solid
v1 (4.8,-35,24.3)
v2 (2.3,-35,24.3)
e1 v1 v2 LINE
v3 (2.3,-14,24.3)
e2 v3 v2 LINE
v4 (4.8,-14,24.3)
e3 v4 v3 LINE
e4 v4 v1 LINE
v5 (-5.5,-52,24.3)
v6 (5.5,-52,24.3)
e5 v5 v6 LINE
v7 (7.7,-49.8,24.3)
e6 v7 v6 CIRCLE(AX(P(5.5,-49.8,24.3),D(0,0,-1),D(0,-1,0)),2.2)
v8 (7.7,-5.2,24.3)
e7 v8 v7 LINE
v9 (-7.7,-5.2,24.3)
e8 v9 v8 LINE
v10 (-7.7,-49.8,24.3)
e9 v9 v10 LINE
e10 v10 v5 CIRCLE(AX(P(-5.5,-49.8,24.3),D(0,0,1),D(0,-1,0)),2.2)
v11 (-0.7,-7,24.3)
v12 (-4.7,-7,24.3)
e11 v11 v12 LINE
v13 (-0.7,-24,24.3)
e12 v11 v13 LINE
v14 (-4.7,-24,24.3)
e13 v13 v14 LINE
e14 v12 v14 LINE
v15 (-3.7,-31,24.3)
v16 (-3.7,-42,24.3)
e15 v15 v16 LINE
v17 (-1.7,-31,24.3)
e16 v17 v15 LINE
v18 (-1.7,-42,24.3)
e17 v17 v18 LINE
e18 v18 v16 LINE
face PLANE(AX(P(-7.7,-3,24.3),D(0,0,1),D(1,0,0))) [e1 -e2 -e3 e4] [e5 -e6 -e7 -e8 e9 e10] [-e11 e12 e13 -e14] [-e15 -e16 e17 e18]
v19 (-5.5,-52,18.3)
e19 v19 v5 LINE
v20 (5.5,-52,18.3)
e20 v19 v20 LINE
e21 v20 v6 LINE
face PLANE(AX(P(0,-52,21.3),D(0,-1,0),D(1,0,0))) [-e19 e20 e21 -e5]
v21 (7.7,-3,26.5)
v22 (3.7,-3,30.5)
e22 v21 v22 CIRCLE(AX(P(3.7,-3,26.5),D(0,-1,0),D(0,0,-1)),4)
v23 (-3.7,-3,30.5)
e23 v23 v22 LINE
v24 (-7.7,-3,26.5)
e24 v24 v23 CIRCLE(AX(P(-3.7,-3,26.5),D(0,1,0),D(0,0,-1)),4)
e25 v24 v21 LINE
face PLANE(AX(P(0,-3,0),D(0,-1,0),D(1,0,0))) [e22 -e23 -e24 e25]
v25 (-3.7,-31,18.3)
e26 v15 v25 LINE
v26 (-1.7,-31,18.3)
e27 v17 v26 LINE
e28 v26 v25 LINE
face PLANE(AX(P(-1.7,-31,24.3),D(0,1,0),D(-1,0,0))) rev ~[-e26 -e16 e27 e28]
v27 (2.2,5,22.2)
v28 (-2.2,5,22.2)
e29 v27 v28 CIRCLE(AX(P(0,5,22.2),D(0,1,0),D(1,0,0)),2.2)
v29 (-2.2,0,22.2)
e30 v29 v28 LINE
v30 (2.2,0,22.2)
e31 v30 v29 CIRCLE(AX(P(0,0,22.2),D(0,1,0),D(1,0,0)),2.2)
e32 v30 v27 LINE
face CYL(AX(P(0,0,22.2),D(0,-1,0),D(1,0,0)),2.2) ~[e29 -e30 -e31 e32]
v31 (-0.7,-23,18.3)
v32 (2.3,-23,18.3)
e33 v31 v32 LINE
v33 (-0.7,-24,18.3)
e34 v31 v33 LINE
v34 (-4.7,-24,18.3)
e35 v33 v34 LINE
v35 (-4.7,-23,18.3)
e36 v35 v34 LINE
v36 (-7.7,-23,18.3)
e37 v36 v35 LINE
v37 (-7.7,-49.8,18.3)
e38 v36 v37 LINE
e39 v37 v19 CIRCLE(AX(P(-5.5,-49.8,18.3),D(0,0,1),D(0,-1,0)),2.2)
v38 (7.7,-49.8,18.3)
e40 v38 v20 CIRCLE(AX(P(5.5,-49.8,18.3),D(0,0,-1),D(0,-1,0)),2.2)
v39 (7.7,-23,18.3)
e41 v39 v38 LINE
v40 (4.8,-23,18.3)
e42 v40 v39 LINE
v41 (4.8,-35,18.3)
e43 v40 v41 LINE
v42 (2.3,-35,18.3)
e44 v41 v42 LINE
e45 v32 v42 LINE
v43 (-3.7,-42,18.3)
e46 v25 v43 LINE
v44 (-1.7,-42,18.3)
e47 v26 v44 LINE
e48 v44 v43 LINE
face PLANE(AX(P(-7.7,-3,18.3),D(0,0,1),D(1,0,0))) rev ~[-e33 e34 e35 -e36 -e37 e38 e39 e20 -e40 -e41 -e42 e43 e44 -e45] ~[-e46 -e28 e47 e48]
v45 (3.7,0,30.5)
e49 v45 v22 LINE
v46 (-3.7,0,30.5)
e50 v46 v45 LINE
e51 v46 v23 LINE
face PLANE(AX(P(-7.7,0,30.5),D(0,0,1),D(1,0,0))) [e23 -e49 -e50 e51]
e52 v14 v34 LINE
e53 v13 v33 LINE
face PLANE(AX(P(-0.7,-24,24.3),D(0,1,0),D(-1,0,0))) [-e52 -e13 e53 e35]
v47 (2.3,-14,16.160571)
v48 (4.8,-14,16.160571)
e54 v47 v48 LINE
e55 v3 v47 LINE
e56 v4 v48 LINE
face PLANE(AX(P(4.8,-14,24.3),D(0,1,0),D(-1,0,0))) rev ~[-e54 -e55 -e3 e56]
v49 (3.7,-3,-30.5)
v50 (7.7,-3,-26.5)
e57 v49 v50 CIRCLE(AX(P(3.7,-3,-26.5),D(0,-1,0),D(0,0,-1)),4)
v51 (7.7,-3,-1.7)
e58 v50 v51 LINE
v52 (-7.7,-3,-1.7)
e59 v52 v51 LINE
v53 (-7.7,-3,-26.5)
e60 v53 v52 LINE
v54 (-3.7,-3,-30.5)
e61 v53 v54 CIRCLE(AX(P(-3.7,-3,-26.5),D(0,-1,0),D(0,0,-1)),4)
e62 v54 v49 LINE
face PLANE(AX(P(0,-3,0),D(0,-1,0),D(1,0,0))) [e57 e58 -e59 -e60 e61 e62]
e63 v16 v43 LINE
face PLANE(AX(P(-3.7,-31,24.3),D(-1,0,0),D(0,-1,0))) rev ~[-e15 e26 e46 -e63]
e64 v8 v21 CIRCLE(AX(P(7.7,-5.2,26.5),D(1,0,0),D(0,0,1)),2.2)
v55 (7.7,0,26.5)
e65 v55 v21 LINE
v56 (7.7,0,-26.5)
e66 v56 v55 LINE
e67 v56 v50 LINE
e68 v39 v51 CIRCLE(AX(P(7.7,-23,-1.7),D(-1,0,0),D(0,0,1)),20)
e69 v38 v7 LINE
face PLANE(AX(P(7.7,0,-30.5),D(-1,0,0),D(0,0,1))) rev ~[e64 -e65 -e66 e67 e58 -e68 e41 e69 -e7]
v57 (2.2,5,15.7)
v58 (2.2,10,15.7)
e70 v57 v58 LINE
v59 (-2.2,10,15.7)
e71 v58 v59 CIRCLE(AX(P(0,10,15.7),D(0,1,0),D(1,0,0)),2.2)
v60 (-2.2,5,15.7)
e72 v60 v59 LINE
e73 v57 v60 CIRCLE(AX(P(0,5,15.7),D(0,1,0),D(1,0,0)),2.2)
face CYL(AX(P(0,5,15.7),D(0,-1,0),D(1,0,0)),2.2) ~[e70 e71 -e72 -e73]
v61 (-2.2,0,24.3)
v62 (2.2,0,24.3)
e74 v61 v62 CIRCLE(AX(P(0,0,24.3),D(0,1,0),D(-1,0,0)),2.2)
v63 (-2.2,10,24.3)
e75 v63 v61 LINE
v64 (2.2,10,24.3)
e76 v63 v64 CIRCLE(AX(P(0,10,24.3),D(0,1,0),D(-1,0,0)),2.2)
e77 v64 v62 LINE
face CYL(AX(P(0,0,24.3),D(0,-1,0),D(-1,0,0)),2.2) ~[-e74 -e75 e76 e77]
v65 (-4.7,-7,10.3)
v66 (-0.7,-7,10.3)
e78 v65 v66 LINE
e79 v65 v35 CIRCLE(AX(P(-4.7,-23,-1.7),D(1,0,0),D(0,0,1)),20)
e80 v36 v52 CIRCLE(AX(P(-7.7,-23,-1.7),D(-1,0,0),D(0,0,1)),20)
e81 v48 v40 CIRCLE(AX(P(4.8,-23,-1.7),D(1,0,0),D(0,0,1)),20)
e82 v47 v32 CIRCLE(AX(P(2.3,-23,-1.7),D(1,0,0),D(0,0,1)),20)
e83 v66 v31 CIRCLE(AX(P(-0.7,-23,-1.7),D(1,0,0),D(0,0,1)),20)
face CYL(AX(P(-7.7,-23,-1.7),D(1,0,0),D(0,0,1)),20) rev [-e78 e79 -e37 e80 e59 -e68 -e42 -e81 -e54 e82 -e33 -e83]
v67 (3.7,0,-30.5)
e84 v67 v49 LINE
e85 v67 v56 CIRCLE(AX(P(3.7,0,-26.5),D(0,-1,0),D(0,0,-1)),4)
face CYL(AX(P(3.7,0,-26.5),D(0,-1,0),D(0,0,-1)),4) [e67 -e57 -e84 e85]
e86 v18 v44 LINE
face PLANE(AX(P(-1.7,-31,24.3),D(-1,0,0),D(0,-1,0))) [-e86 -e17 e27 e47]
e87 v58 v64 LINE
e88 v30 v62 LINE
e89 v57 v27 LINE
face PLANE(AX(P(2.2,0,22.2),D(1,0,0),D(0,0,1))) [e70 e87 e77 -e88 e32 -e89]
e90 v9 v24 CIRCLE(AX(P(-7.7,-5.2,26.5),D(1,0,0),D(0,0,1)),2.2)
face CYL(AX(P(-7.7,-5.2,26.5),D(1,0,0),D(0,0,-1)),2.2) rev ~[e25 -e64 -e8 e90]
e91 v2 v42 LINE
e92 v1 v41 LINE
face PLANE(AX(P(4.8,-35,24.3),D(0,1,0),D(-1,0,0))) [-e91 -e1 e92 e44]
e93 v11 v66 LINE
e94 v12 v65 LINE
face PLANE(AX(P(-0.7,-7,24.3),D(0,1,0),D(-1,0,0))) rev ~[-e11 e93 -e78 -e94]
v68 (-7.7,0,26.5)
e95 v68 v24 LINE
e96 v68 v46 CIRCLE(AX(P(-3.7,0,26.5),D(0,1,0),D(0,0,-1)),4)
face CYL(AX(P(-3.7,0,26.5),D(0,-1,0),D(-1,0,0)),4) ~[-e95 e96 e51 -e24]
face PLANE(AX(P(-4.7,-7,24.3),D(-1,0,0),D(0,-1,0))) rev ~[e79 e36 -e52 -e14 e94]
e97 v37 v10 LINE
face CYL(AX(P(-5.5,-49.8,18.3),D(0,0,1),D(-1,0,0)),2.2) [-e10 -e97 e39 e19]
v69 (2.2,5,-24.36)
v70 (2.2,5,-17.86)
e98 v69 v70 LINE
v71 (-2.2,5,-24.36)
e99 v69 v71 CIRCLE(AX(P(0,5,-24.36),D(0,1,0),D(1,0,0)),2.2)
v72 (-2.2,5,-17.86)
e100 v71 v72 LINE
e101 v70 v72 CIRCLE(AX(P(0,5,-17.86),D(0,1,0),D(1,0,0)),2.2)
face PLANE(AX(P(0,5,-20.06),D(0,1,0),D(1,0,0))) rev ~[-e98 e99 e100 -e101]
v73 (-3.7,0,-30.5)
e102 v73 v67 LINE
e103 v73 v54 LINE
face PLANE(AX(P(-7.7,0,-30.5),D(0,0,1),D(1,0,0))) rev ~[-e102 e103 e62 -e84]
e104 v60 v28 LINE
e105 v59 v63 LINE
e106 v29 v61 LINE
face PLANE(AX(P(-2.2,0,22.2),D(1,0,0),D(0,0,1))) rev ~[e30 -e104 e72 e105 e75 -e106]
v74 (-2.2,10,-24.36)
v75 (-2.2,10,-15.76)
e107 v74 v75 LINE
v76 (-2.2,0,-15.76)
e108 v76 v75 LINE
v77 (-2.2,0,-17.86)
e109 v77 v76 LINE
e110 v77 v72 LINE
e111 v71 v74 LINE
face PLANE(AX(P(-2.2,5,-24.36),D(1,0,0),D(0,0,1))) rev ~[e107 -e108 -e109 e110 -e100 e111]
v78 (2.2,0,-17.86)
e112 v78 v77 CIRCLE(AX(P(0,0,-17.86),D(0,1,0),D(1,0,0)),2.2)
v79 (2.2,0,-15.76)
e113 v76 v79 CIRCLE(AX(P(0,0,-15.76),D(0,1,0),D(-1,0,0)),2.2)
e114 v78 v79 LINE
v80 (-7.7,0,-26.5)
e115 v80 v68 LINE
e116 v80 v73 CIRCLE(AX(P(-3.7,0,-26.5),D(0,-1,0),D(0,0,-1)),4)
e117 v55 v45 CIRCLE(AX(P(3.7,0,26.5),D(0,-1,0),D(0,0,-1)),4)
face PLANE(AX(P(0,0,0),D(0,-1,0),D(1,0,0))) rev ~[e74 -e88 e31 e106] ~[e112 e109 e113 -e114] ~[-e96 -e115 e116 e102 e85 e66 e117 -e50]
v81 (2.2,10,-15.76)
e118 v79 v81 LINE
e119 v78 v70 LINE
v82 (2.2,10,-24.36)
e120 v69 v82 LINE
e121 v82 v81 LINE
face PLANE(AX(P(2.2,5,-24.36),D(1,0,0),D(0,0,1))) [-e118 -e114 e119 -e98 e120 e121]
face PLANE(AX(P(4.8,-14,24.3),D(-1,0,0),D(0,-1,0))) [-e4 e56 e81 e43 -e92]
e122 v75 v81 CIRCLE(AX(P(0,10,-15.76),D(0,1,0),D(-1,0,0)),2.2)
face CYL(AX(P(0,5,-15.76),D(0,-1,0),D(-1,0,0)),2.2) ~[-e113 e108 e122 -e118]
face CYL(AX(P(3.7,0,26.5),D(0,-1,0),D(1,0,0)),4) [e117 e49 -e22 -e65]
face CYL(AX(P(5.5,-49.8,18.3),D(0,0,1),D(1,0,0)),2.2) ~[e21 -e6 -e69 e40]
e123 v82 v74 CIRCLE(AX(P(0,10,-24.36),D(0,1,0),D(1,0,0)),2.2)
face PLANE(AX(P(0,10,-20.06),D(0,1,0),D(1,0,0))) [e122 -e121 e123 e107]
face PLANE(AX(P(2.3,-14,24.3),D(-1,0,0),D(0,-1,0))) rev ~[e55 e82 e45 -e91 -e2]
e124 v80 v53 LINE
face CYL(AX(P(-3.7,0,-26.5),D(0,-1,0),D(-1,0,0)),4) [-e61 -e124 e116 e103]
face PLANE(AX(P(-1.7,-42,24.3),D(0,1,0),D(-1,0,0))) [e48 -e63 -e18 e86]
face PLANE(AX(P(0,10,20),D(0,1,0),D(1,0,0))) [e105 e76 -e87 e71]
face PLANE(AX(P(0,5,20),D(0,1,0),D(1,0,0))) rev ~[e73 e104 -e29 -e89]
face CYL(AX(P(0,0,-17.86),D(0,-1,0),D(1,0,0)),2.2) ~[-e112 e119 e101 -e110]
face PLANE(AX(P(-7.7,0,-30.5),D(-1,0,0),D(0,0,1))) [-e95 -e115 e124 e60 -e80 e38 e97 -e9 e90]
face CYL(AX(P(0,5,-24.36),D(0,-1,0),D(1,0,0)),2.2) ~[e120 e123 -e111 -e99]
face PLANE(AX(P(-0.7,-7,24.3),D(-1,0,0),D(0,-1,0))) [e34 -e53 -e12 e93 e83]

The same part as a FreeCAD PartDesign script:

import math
import FreeCAD as App
import Part
import Sketcher
from FreeCAD import Vector


def edges_at(feature, points):
    """Names of the edges that pass closest to the given points."""
    edges = feature.Shape.Edges
    near = lambda p: min(range(len(edges)), key=lambda i: edges[i].distToShape(Part.Vertex(*p))[0])
    return sorted({f"Edge{near(p) + 1}" for p in points})

doc = App.newDocument("Part")
body = doc.addObject("PartDesign::Body", "Body")

# Sketch on XZ plane
sketch1 = body.newObject("Sketcher::SketchObject", "Sketch")
sketch1.AttachmentSupport = (doc.getObject("XZ_Plane"), [""])
sketch1.MapMode = "FlatFace"
sketch1.addGeometry(Part.LineSegment(Vector(-7.7, 30.5, 0), Vector(-7.7, -30.5, 0)), False)
sketch1.addGeometry(Part.LineSegment(Vector(-7.7, -30.5, 0), Vector(7.7, -30.5, 0)), False)
sketch1.addGeometry(Part.LineSegment(Vector(7.7, -30.5, 0), Vector(7.7, 30.5, 0)), False)
sketch1.addGeometry(Part.LineSegment(Vector(7.7, 30.5, 0), Vector(-7.7, 30.5, 0)), False)
sketch1.addConstraint(Sketcher.Constraint("Coincident", 0, 2, 1, 1))
sketch1.addConstraint(Sketcher.Constraint("Coincident", 1, 2, 2, 1))
sketch1.addConstraint(Sketcher.Constraint("Coincident", 2, 2, 3, 1))
sketch1.addConstraint(Sketcher.Constraint("Coincident", 3, 2, 0, 1))
sketch1.addConstraint(Sketcher.Constraint("Vertical", 0))
sketch1.addConstraint(Sketcher.Constraint("Horizontal", 1))
sketch1.addConstraint(Sketcher.Constraint("Vertical", 2))
sketch1.addConstraint(Sketcher.Constraint("Horizontal", 3))
sketch1.addConstraint(Sketcher.Constraint("Symmetric", 0, 2, 2, 2, -1, 1))
sketch1.addConstraint(Sketcher.Constraint("DistanceY", 0, 2, 0, 1, 61.0))
sketch1.addConstraint(Sketcher.Constraint("DistanceX", 1, 1, 1, 2, 15.4))
pad1 = body.newObject("PartDesign::Pad", "Pad")
pad1.Profile = sketch1
pad1.Length = 3
doc.recompute()

fillet = body.newObject("PartDesign::Fillet", "Fillet")
fillet.Base = (pad1, edges_at(pad1, [
    (7.7, -1.5, 30.5),
    (-7.7, -1.5, 30.5),
    (7.7, -1.5, -30.5),
    (-7.7, -1.5, -30.5),
]))
fillet.Radius = 4

# Sketch on XZ plane
sketch2 = body.newObject("Sketcher::SketchObject", "Sketch001")
sketch2.AttachmentSupport = (doc.getObject("XZ_Plane"), [""])
sketch2.MapMode = "FlatFace"
sketch2.addGeometry(Part.LineSegment(Vector(-2.2, -17.86, 0), Vector(-2.2, -15.76, 0)), False)
sketch2.addGeometry(Part.ArcOfCircle(Part.Circle(Vector(0, -15.76, 0), Vector(0, 0, 1), 2.2), math.radians(0), math.radians(180)), False)
sketch2.addGeometry(Part.LineSegment(Vector(2.2, -15.76, 0), Vector(2.2, -17.86, 0)), False)
sketch2.addGeometry(Part.ArcOfCircle(Part.Circle(Vector(0, -17.86, 0), Vector(0, 0, 1), 2.2), math.radians(180), math.radians(360)), False)
sketch2.addGeometry(Part.LineSegment(Vector(-2.2, 22.2, 0), Vector(-2.2, 24.3, 0)), False)
sketch2.addGeometry(Part.ArcOfCircle(Part.Circle(Vector(0, 24.3, 0), Vector(0, 0, 1), 2.2), math.radians(0), math.radians(180)), False)
sketch2.addGeometry(Part.LineSegment(Vector(2.2, 24.3, 0), Vector(2.2, 22.2, 0)), False)
sketch2.addGeometry(Part.ArcOfCircle(Part.Circle(Vector(0, 22.2, 0), Vector(0, 0, 1), 2.2), math.radians(180), math.radians(360)), False)
sketch2.addConstraint(Sketcher.Constraint("Tangent", 0, 2, 1, 2))
sketch2.addConstraint(Sketcher.Constraint("Tangent", 1, 1, 2, 1))
sketch2.addConstraint(Sketcher.Constraint("Tangent", 2, 2, 3, 2))
sketch2.addConstraint(Sketcher.Constraint("Tangent", 3, 1, 0, 1))
sketch2.addConstraint(Sketcher.Constraint("Tangent", 4, 2, 5, 2))
sketch2.addConstraint(Sketcher.Constraint("Tangent", 5, 1, 6, 1))
sketch2.addConstraint(Sketcher.Constraint("Tangent", 6, 2, 7, 2))
sketch2.addConstraint(Sketcher.Constraint("Tangent", 7, 1, 4, 1))
sketch2.addConstraint(Sketcher.Constraint("Vertical", 0))
sketch2.addConstraint(Sketcher.Constraint("Vertical", 2))
sketch2.addConstraint(Sketcher.Constraint("Vertical", 4))
sketch2.addConstraint(Sketcher.Constraint("Vertical", 6))
sketch2.addConstraint(Sketcher.Constraint("Equal", 3, 5))
sketch2.addConstraint(Sketcher.Constraint("PointOnObject", 1, 3, -2))
sketch2.addConstraint(Sketcher.Constraint("PointOnObject", 5, 3, -2))
sketch2.addConstraint(Sketcher.Constraint("Equal", 2, 4))
sketch2.addConstraint(Sketcher.Constraint("Radius", 1, 2.2))
sketch2.addConstraint(Sketcher.Constraint("DistanceY", 0, 1, 0, 2, 2.1))
sketch2.addConstraint(Sketcher.Constraint("DistanceY", -1, 1, 5, 3, 24.3))
sketch2.addConstraint(Sketcher.Constraint("DistanceY", 1, 3, -1, 1, 15.76))
pad2 = body.newObject("PartDesign::Pad", "Pad001")
pad2.Profile = sketch2
pad2.Length = 5
pad2.Reversed = True

# Sketch on XZ plane
sketch3 = body.newObject("Sketcher::SketchObject", "Sketch002")
sketch3.AttachmentSupport = (doc.getObject("XZ_Plane"), [""])
sketch3.MapMode = "FlatFace"
sketch3.AttachmentOffset = App.Placement(Vector(0, 0, -5), App.Rotation())
sketch3.addGeometry(Part.LineSegment(Vector(-2.2, -24.36, 0), Vector(-2.2, -15.76, 0)), False)
sketch3.addGeometry(Part.ArcOfCircle(Part.Circle(Vector(0, -15.76, 0), Vector(0, 0, 1), 2.2), math.radians(0), math.radians(180)), False)
sketch3.addGeometry(Part.LineSegment(Vector(2.2, -15.76, 0), Vector(2.2, -24.36, 0)), False)
sketch3.addGeometry(Part.ArcOfCircle(Part.Circle(Vector(0, -24.36, 0), Vector(0, 0, 1), 2.2), math.radians(180), math.radians(360)), False)
sketch3.addGeometry(Part.LineSegment(Vector(-2.2, 15.7, 0), Vector(-2.2, 24.3, 0)), False)
sketch3.addGeometry(Part.ArcOfCircle(Part.Circle(Vector(0, 24.3, 0), Vector(0, 0, 1), 2.2), math.radians(0), math.radians(180)), False)
sketch3.addGeometry(Part.LineSegment(Vector(2.2, 24.3, 0), Vector(2.2, 15.7, 0)), False)
sketch3.addGeometry(Part.ArcOfCircle(Part.Circle(Vector(0, 15.7, 0), Vector(0, 0, 1), 2.2), math.radians(180), math.radians(360)), False)
sketch3.addConstraint(Sketcher.Constraint("Tangent", 0, 2, 1, 2))
sketch3.addConstraint(Sketcher.Constraint("Tangent", 1, 1, 2, 1))
sketch3.addConstraint(Sketcher.Constraint("Tangent", 2, 2, 3, 2))
sketch3.addConstraint(Sketcher.Constraint("Tangent", 3, 1, 0, 1))
sketch3.addConstraint(Sketcher.Constraint("Tangent", 4, 2, 5, 2))
sketch3.addConstraint(Sketcher.Constraint("Tangent", 5, 1, 6, 1))
sketch3.addConstraint(Sketcher.Constraint("Tangent", 6, 2, 7, 2))
sketch3.addConstraint(Sketcher.Constraint("Tangent", 7, 1, 4, 1))
sketch3.addConstraint(Sketcher.Constraint("Vertical", 0))
sketch3.addConstraint(Sketcher.Constraint("Vertical", 2))
sketch3.addConstraint(Sketcher.Constraint("Vertical", 4))
sketch3.addConstraint(Sketcher.Constraint("Vertical", 6))
sketch3.addConstraint(Sketcher.Constraint("Equal", 3, 5))
sketch3.addConstraint(Sketcher.Constraint("PointOnObject", 1, 3, -2))
sketch3.addConstraint(Sketcher.Constraint("PointOnObject", 5, 3, -2))
sketch3.addConstraint(Sketcher.Constraint("Equal", 2, 4))
sketch3.addConstraint(Sketcher.Constraint("Radius", 1, 2.2))
sketch3.addConstraint(Sketcher.Constraint("DistanceY", 0, 1, 0, 2, 8.6))
sketch3.addConstraint(Sketcher.Constraint("DistanceY", -1, 1, 5, 3, 24.3))
sketch3.addConstraint(Sketcher.Constraint("DistanceY", 1, 3, -1, 1, 15.76))
pad3 = body.newObject("PartDesign::Pad", "Pad002")
pad3.Profile = sketch3
pad3.Length = 5
pad3.Reversed = True

# Sketch on XZ plane
sketch4 = body.newObject("Sketcher::SketchObject", "Sketch003")
sketch4.AttachmentSupport = (doc.getObject("XZ_Plane"), [""])
sketch4.MapMode = "FlatFace"
sketch4.AttachmentOffset = App.Placement(Vector(0, 0, 3), App.Rotation())
sketch4.addGeometry(Part.LineSegment(Vector(-7.7, 24.3, 0), Vector(-7.7, 18.3, 0)), False)
sketch4.addGeometry(Part.LineSegment(Vector(-7.7, 18.3, 0), Vector(7.7, 18.3, 0)), False)
sketch4.addGeometry(Part.LineSegment(Vector(7.7, 18.3, 0), Vector(7.7, 24.3, 0)), False)
sketch4.addGeometry(Part.LineSegment(Vector(7.7, 24.3, 0), Vector(-7.7, 24.3, 0)), False)
sketch4.addConstraint(Sketcher.Constraint("Coincident", 0, 2, 1, 1))
sketch4.addConstraint(Sketcher.Constraint("Coincident", 1, 2, 2, 1))
sketch4.addConstraint(Sketcher.Constraint("Coincident", 2, 2, 3, 1))
sketch4.addConstraint(Sketcher.Constraint("Coincident", 3, 2, 0, 1))
sketch4.addConstraint(Sketcher.Constraint("Vertical", 0))
sketch4.addConstraint(Sketcher.Constraint("Horizontal", 1))
sketch4.addConstraint(Sketcher.Constraint("Vertical", 2))
sketch4.addConstraint(Sketcher.Constraint("Horizontal", 3))
sketch4.addConstraint(Sketcher.Constraint("DistanceY", 0, 2, 0, 1, 6.0))
sketch4.addConstraint(Sketcher.Constraint("DistanceX", 1, 1, 1, 2, 15.4))
sketch4.addConstraint(Sketcher.Constraint("DistanceX", 0, 2, -1, 1, 7.7))
sketch4.addConstraint(Sketcher.Constraint("DistanceY", -1, 1, 0, 2, 18.3))
pad4 = body.newObject("PartDesign::Pad", "Pad003")
pad4.Profile = sketch4
pad4.Length = 49
doc.recompute()

fillet2 = body.newObject("PartDesign::Fillet", "Fillet001")
fillet2.Base = (pad4, edges_at(pad4, [(7.7, -52, 21.3), (-7.7, -52, 21.3)]))
fillet2.Radius = 2.2
doc.recompute()

fillet3 = body.newObject("PartDesign::Fillet", "Fillet002")
fillet3.Base = (fillet2, edges_at(fillet2, [(0, -3, 18.3)]))
fillet3.Radius = 20
doc.recompute()

fillet4 = body.newObject("PartDesign::Fillet", "Fillet003")
fillet4.Base = (fillet3, edges_at(fillet3, [(0, -3, 24.3)]))
fillet4.Radius = 2.2

# Sketch on XY plane
sketch5 = body.newObject("Sketcher::SketchObject", "Sketch004")
sketch5.AttachmentSupport = (doc.getObject("XY_Plane"), [""])
sketch5.MapMode = "FlatFace"
sketch5.AttachmentOffset = App.Placement(Vector(0, 0, 24.3), App.Rotation())
sketch5.addGeometry(Part.LineSegment(Vector(-0.7, -24, 0), Vector(-0.7, -7, 0)), False)
sketch5.addGeometry(Part.LineSegment(Vector(-0.7, -7, 0), Vector(-4.7, -7, 0)), False)
sketch5.addGeometry(Part.LineSegment(Vector(-4.7, -7, 0), Vector(-4.7, -24, 0)), False)
sketch5.addGeometry(Part.LineSegment(Vector(-4.7, -24, 0), Vector(-0.7, -24, 0)), False)
sketch5.addGeometry(Part.LineSegment(Vector(-1.7, -42, 0), Vector(-1.7, -31, 0)), False)
sketch5.addGeometry(Part.LineSegment(Vector(-1.7, -31, 0), Vector(-3.7, -31, 0)), False)
sketch5.addGeometry(Part.LineSegment(Vector(-3.7, -31, 0), Vector(-3.7, -42, 0)), False)
sketch5.addGeometry(Part.LineSegment(Vector(-3.7, -42, 0), Vector(-1.7, -42, 0)), False)
sketch5.addGeometry(Part.LineSegment(Vector(4.8, -35, 0), Vector(4.8, -14, 0)), False)
sketch5.addGeometry(Part.LineSegment(Vector(4.8, -14, 0), Vector(2.3, -14, 0)), False)
sketch5.addGeometry(Part.LineSegment(Vector(2.3, -14, 0), Vector(2.3, -35, 0)), False)
sketch5.addGeometry(Part.LineSegment(Vector(2.3, -35, 0), Vector(4.8, -35, 0)), False)
sketch5.addConstraint(Sketcher.Constraint("Coincident", 0, 2, 1, 1))
sketch5.addConstraint(Sketcher.Constraint("Coincident", 1, 2, 2, 1))
sketch5.addConstraint(Sketcher.Constraint("Coincident", 2, 2, 3, 1))
sketch5.addConstraint(Sketcher.Constraint("Coincident", 3, 2, 0, 1))
sketch5.addConstraint(Sketcher.Constraint("Coincident", 4, 2, 5, 1))
sketch5.addConstraint(Sketcher.Constraint("Coincident", 5, 2, 6, 1))
sketch5.addConstraint(Sketcher.Constraint("Coincident", 6, 2, 7, 1))
sketch5.addConstraint(Sketcher.Constraint("Coincident", 7, 2, 4, 1))
sketch5.addConstraint(Sketcher.Constraint("Coincident", 8, 2, 9, 1))
sketch5.addConstraint(Sketcher.Constraint("Coincident", 9, 2, 10, 1))
sketch5.addConstraint(Sketcher.Constraint("Coincident", 10, 2, 11, 1))
sketch5.addConstraint(Sketcher.Constraint("Coincident", 11, 2, 8, 1))
sketch5.addConstraint(Sketcher.Constraint("Vertical", 0))
sketch5.addConstraint(Sketcher.Constraint("Horizontal", 1))
sketch5.addConstraint(Sketcher.Constraint("Vertical", 2))
sketch5.addConstraint(Sketcher.Constraint("Horizontal", 3))
sketch5.addConstraint(Sketcher.Constraint("Vertical", 4))
sketch5.addConstraint(Sketcher.Constraint("Horizontal", 5))
sketch5.addConstraint(Sketcher.Constraint("Vertical", 6))
sketch5.addConstraint(Sketcher.Constraint("Horizontal", 7))
sketch5.addConstraint(Sketcher.Constraint("Vertical", 8))
sketch5.addConstraint(Sketcher.Constraint("Horizontal", 9))
sketch5.addConstraint(Sketcher.Constraint("Vertical", 10))
sketch5.addConstraint(Sketcher.Constraint("Horizontal", 11))
sketch5.addConstraint(Sketcher.Constraint("DistanceX", 1, 2, 1, 1, 4.0))
sketch5.addConstraint(Sketcher.Constraint("DistanceX", 5, 2, 5, 1, 2.0))
sketch5.addConstraint(Sketcher.Constraint("DistanceY", 0, 1, 0, 2, 17.0))
sketch5.addConstraint(Sketcher.Constraint("DistanceY", 4, 1, 4, 2, 11.0))
sketch5.addConstraint(Sketcher.Constraint("DistanceY", 8, 1, 8, 2, 21.0))
sketch5.addConstraint(Sketcher.Constraint("DistanceX", 9, 2, 9, 1, 2.5))
sketch5.addConstraint(Sketcher.Constraint("DistanceY", 0, 2, -1, 1, 7.0))
sketch5.addConstraint(Sketcher.Constraint("DistanceY", 4, 2, -1, 1, 31.0))
sketch5.addConstraint(Sketcher.Constraint("DistanceY", 8, 2, -1, 1, 14.0))
sketch5.addConstraint(Sketcher.Constraint("DistanceX", 4, 2, 3, 2, 1.0))
sketch5.addConstraint(Sketcher.Constraint("DistanceX", 0, 2, 9, 2, 3.0))
sketch5.addConstraint(Sketcher.Constraint("DistanceX", 0, 2, -1, 1, 0.7))
pocket1 = body.newObject("PartDesign::Pocket", "Pocket")
pocket1.Profile = sketch5
pocket1.Type = "ThroughAll"

doc.recompute()
